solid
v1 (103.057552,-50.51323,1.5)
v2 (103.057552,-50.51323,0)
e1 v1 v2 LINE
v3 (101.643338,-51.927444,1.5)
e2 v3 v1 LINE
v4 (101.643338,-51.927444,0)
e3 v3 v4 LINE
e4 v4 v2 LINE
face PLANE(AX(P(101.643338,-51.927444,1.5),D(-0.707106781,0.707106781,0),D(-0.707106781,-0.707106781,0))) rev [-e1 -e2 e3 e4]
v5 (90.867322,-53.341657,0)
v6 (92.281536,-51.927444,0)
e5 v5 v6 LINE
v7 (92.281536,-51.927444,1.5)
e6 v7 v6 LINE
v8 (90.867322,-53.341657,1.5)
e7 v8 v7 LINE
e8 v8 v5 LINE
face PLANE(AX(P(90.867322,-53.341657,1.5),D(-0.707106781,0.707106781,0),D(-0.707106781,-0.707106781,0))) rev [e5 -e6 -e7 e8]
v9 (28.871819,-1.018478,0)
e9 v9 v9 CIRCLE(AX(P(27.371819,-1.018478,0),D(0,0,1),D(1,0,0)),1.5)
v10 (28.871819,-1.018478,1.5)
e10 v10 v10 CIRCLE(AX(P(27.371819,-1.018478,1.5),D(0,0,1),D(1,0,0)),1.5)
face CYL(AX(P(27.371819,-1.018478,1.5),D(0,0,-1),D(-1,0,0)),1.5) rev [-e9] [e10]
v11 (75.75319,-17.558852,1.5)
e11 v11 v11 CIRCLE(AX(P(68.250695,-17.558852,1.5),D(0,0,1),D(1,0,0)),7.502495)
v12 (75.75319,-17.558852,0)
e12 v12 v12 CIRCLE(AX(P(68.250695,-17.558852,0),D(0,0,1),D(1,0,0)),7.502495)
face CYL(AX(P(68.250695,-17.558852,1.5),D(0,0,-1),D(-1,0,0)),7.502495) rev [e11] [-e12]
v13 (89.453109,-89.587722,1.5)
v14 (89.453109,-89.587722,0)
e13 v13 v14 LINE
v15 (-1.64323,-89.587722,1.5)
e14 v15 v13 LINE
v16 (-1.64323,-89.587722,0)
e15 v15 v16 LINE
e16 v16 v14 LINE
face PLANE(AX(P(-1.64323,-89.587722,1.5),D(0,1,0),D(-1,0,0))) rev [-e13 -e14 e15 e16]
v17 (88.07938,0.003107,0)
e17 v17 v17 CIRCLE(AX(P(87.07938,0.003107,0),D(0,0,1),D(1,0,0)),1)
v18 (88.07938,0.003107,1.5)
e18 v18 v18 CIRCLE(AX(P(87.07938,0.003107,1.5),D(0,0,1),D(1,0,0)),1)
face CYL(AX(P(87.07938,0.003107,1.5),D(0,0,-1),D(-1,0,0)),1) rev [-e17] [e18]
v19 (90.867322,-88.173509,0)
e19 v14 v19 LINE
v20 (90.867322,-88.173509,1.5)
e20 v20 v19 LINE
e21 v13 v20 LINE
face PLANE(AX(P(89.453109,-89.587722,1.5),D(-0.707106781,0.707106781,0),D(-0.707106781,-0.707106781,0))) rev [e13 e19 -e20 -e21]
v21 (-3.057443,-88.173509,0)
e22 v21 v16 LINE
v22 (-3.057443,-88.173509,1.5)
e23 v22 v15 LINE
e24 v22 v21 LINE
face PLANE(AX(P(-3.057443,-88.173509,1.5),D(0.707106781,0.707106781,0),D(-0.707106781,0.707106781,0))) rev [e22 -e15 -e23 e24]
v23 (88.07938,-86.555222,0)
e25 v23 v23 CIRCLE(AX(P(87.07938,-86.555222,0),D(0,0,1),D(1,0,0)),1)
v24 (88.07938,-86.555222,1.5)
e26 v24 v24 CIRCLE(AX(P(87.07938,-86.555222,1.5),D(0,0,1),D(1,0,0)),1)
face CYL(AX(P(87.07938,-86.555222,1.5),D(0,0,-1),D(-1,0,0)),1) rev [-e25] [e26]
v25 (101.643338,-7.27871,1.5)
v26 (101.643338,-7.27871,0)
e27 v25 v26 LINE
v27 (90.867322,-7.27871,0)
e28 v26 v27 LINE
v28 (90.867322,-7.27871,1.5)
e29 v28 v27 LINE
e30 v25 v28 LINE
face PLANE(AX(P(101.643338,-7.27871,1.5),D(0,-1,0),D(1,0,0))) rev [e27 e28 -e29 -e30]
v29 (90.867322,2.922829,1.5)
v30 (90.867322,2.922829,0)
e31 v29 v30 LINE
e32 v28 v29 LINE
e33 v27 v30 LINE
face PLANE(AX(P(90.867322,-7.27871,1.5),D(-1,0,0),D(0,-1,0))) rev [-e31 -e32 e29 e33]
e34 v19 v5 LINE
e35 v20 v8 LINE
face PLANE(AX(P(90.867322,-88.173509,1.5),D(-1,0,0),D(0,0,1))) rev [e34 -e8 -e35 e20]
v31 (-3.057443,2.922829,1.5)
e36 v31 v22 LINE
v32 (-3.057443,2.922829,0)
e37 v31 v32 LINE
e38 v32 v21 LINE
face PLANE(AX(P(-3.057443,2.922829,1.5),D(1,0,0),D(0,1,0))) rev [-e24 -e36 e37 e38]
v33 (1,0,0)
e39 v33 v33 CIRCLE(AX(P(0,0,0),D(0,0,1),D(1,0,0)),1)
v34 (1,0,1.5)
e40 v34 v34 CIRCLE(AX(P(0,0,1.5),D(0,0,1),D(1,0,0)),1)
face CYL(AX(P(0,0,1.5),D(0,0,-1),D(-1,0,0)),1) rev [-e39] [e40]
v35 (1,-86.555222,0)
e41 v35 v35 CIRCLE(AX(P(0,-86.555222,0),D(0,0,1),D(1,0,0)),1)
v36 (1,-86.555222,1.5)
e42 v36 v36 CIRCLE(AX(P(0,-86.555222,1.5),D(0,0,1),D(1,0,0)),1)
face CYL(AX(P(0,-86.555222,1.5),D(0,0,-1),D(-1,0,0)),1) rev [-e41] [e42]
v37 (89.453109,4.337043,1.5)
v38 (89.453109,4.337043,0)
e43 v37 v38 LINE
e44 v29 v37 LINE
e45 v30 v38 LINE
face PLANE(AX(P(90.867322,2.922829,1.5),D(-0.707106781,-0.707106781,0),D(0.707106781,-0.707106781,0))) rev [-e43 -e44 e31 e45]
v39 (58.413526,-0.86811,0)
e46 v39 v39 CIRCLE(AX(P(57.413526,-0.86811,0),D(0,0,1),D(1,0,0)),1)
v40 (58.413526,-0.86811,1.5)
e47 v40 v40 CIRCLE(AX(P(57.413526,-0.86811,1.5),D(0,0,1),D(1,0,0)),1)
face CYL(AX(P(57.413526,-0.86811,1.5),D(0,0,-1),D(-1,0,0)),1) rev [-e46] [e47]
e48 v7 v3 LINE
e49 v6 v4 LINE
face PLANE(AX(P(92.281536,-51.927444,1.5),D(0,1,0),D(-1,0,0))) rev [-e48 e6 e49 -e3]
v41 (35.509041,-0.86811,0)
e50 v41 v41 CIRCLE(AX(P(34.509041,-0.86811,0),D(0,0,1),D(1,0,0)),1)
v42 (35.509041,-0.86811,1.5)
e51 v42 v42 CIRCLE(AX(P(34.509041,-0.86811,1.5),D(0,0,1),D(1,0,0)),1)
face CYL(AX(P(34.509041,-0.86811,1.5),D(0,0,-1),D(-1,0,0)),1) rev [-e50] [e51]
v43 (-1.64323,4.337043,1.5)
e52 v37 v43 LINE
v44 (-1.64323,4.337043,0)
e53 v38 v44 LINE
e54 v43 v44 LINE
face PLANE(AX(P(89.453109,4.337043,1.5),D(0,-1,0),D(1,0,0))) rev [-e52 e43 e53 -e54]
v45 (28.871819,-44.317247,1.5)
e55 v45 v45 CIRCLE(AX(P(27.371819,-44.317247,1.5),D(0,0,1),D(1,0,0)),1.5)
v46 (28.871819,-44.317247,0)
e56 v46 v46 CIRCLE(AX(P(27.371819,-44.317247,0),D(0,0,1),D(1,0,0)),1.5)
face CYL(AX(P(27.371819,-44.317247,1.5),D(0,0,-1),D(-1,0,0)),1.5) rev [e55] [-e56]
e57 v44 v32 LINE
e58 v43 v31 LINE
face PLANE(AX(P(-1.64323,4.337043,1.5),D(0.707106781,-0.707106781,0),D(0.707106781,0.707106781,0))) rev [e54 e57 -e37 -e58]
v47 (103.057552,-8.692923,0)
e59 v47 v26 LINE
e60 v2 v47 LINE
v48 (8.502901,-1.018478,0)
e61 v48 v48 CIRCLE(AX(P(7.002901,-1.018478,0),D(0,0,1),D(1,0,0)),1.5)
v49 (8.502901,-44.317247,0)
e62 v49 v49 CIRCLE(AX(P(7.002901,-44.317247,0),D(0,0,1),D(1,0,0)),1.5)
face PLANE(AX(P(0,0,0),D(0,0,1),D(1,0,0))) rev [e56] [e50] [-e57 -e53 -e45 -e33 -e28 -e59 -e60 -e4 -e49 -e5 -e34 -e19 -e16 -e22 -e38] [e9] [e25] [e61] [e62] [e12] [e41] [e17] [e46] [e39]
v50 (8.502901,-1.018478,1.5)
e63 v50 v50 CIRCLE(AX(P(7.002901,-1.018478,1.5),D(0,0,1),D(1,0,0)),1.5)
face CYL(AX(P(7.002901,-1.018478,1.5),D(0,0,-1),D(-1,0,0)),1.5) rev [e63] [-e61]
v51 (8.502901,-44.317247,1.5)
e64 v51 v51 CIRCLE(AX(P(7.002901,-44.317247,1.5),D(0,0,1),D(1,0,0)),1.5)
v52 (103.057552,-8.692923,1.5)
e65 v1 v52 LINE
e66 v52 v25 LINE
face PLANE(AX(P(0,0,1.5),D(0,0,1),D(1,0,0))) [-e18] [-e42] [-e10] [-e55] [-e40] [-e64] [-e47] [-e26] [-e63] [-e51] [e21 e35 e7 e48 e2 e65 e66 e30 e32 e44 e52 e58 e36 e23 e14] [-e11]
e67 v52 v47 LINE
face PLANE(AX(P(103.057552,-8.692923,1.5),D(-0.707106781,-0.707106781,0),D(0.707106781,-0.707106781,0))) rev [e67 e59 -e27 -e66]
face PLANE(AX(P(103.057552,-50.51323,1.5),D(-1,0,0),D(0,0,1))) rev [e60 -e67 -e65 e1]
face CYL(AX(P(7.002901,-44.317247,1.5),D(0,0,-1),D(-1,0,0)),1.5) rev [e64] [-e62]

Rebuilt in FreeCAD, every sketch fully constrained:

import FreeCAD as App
import Part
import Sketcher
from FreeCAD import Vector
Q = App.Units.Quantity


def add_polygon(sketch, points):
    """Adds a closed chain of lines whose ends are joined by coincident constraints."""
    first, n = sketch.GeometryCount, len(points)
    for a, b in zip(points, points[1:] + points[:1]):
        sketch.addGeometry(Part.LineSegment(App.Vector(*a, 0), App.Vector(*b, 0)), False)
    for i in range(n):
        sketch.addConstraint(Sketcher.Constraint("Coincident", first + i, 2, first + (i + 1) % n, 1))

doc = App.newDocument("Part")
params = doc.addObject("Spreadsheet::Sheet", "Params")
for row, (alias, value) in enumerate([
    ("sketch1_diameter", "2 mm"),
    ("sketch1_diameter2", "3 mm"),
    ("sketch1_length", "2 mm"),
    ("pad1_length", "1.5 mm"),
], start=1):
    params.set(f"A{row}", alias)
    params.set(f"B{row}", "=" + value)
    params.setAlias(f"B{row}", alias)

body = doc.addObject("PartDesign::Body", "Body")

# Sketch on XY plane
sketch1 = doc.addObject("Sketcher::SketchObject", "Sketch")
body.addObject(sketch1)
sketch1.AttachmentSupport = (doc.XY_Plane, [""])
sketch1.MapMode = "FlatFace"
add_polygon(sketch1, [(89.5, 4.3), (-1.6, 4.3), (-3.1, 2.9), (-3.1, -88.2), (-1.6, -89.6), (89.5, -89.6), (90.9, -88.2), (90.9, -53.3), (92.3, -51.9), (101.6, -51.9), (103.1, -50.5), (103.1, -8.7), (101.6, -7.3), (90.9, -7.3), (90.9, 2.9)])  # lines 0-14
sketch1.addGeometry(Part.Circle(Vector(0, -86.6, 0), Vector(0, 0, 1), 1), False)  # 15
sketch1.addGeometry(Part.Circle(Vector(7, -44.3, 0), Vector(0, 0, 1), 1.5), False)  # 16
sketch1.addGeometry(Part.Circle(Vector(27.4, -44.3, 0), Vector(0, 0, 1), 1.5), False)  # 17
sketch1.addGeometry(Part.Circle(Vector(87.1, -86.6, 0), Vector(0, 0, 1), 1), False)  # 18
sketch1.addGeometry(Part.Circle(Vector(0, 0, 0), Vector(0, 0, 1), 1), False)  # 19
sketch1.addGeometry(Part.Circle(Vector(7, -1, 0), Vector(0, 0, 1), 1.5), False)  # 20
sketch1.addGeometry(Part.Circle(Vector(27.4, -1, 0), Vector(0, 0, 1), 1.5), False)  # 21
sketch1.addGeometry(Part.Circle(Vector(34.5, -0.9, 0), Vector(0, 0, 1), 1), False)  # 22
sketch1.addGeometry(Part.Circle(Vector(57.4, -0.9, 0), Vector(0, 0, 1), 1), False)  # 23
sketch1.addGeometry(Part.Circle(Vector(68.3, -17.6, 0), Vector(0, 0, 1), 7.5), False)  # 24
sketch1.addGeometry(Part.Circle(Vector(87.1, 0, 0), Vector(0, 0, 1), 1), False)  # 25
sketch1.addConstraint(Sketcher.Constraint("Horizontal", 0))
sketch1.addConstraint(Sketcher.Constraint("Vertical", 2))
sketch1.addConstraint(Sketcher.Constraint("Horizontal", 4))
sketch1.addConstraint(Sketcher.Constraint("Vertical", 6))
sketch1.addConstraint(Sketcher.Constraint("Horizontal", 8))
sketch1.addConstraint(Sketcher.Constraint("Vertical", 10))
sketch1.addConstraint(Sketcher.Constraint("Horizontal", 12))
sketch1.addConstraint(Sketcher.Constraint("Vertical", 13))
sketch1.addConstraint(Sketcher.Constraint("Coincident", 19, 3, -1, 1))
sketch1.addConstraint(Sketcher.Constraint("Equal", 16, 17))
sketch1.addConstraint(Sketcher.Constraint("Equal", 15, 18))
sketch1.addConstraint(Sketcher.Constraint("Equal", 18, 19))
sketch1.addConstraint(Sketcher.Constraint("Equal", 17, 20))
sketch1.addConstraint(Sketcher.Constraint("Equal", 20, 21))
sketch1.addConstraint(Sketcher.Constraint("Equal", 19, 22))
sketch1.addConstraint(Sketcher.Constraint("Equal", 22, 23))
sketch1.addConstraint(Sketcher.Constraint("Equal", 23, 25))
sketch1.addConstraint(Sketcher.Constraint("PointOnObject", 15, 3, -2))
sketch1.addConstraint(Sketcher.Constraint("Perpendicular", 1, 3))
sketch1.addConstraint(Sketcher.Constraint("Perpendicular", 3, 5))
sketch1.addConstraint(Sketcher.Constraint("Parallel", 5, 7))
sketch1.addConstraint(Sketcher.Constraint("Parallel", 7, 9))
sketch1.addConstraint(Sketcher.Constraint("Perpendicular", 9, 11))
sketch1.addConstraint(Sketcher.Constraint("Parallel", 11, 14))
sketch1.addConstraint(Sketcher.Constraint("Horizontal", 16, 3, 17, 3))
sketch1.addConstraint(Sketcher.Constraint("Horizontal", 15, 3, 18, 3))
sketch1.addConstraint(Sketcher.Constraint("Horizontal", 20, 3, 21, 3))
sketch1.addConstraint(Sketcher.Constraint("Horizontal", 22, 3, 23, 3))
sketch1.addConstraint(Sketcher.Constraint("Horizontal", 2, 2, 5, 2))
sketch1.addConstraint(Sketcher.Constraint("Horizontal", 1, 2, 13, 2))
sketch1.addConstraint(Sketcher.Constraint("Vertical", 16, 3, 20, 3))
sketch1.addConstraint(Sketcher.Constraint("Vertical", 17, 3, 21, 3))
sketch1.addConstraint(Sketcher.Constraint("Vertical", 18, 3, 25, 3))
sketch1.addConstraint(Sketcher.Constraint("Vertical", 0, 2, 3, 2))
sketch1.addConstraint(Sketcher.Constraint("Vertical", 8, 2, 11, 2))
sketch1.addConstraint(Sketcher.Constraint("Vertical", 6, 2, 12, 2))
sketch1.addConstraint(Sketcher.Constraint("Vertical", 4, 2, 14, 2))
sketch1.addConstraint(Sketcher.Constraint("Equal", 4, 2))
sketch1.addConstraint(Sketcher.Constraint("Equal", 5, 7))
sketch1.addConstraint(Sketcher.Constraint("Equal", 7, 9))
sketch1.addConstraint(Sketcher.Constraint("Diameter", 15, Q("2 mm")))
sketch1.addConstraint(Sketcher.Constraint("Diameter", 16, Q("3 mm")))
sketch1.addConstraint(Sketcher.Constraint("Distance", 1, Q("2 mm")))
sketch1.addConstraint(Sketcher.Constraint("Diameter", 24, Q("15.00499 mm")))
sketch1.addConstraint(Sketcher.Constraint("DistanceX", 0, 2, 0, 1, Q("91.096338 mm")))
sketch1.addConstraint(Sketcher.Constraint("DistanceY", 6, 1, 6, 2, Q("34.831851 mm")))
sketch1.addConstraint(Sketcher.Constraint("DistanceY", 13, 1, 13, 2, Q("10.201539 mm")))
sketch1.addConstraint(Sketcher.Constraint("DistanceX", -1, 1, 16, 3, Q("7.002901 mm")))
sketch1.addConstraint(Sketcher.Constraint("DistanceY", 3, 2, 15, 3, Q("3.0325 mm")))
sketch1.addConstraint(Sketcher.Constraint("DistanceY", 12, 2, 23, 3, Q("6.4106 mm")))
sketch1.addConstraint(Sketcher.Constraint("DistanceX", 8, 1, 8, 2, Q("9.361803 mm")))
sketch1.addConstraint(Sketcher.Constraint("DistanceX", -1, 1, 17, 3, Q("27.371819 mm")))
sketch1.addConstraint(Sketcher.Constraint("DistanceX", -1, 1, 18, 3, Q("87.07938 mm")))
sketch1.addConstraint(Sketcher.Constraint("DistanceY", 20, 3, -1, 1, Q("1.018478 mm")))
sketch1.addConstraint(Sketcher.Constraint("DistanceX", -1, 1, 22, 3, Q("34.509041 mm")))
sketch1.addConstraint(Sketcher.Constraint("DistanceY", 22, 3, -1, 1, Q("0.86811 mm")))
sketch1.addConstraint(Sketcher.Constraint("DistanceX", 0, 2, -1, 1, Q("1.64323 mm")))
sketch1.addConstraint(Sketcher.Constraint("DistanceY", 16, 3, 20, 3, Q("43.298769 mm")))
sketch1.addConstraint(Sketcher.Constraint("DistanceX", 23, 3, 24, 3, Q("10.83717 mm")))
sketch1.addConstraint(Sketcher.Constraint("DistanceY", 24, 3, 25, 3, Q("17.561959 mm")))
sketch1.addConstraint(Sketcher.Constraint("DistanceY", 4, 2, 24, 3, Q("72.02887 mm")))
sketch1.addConstraint(Sketcher.Constraint("DistanceX", 24, 3, 7, 2, Q("24.03084 mm")))
sketch1.setExpression("Constraints[55]", "Params.sketch1_diameter")
sketch1.setExpression("Constraints[56]", "Params.sketch1_diameter2")
sketch1.setExpression("Constraints[57]", "Params.sketch1_length")
pad1 = doc.addObject("PartDesign::Pad", "Pad")
body.addObject(pad1)
pad1.Profile = sketch1
pad1.setExpression("Length", "Params.pad1_length")

doc.recompute()
